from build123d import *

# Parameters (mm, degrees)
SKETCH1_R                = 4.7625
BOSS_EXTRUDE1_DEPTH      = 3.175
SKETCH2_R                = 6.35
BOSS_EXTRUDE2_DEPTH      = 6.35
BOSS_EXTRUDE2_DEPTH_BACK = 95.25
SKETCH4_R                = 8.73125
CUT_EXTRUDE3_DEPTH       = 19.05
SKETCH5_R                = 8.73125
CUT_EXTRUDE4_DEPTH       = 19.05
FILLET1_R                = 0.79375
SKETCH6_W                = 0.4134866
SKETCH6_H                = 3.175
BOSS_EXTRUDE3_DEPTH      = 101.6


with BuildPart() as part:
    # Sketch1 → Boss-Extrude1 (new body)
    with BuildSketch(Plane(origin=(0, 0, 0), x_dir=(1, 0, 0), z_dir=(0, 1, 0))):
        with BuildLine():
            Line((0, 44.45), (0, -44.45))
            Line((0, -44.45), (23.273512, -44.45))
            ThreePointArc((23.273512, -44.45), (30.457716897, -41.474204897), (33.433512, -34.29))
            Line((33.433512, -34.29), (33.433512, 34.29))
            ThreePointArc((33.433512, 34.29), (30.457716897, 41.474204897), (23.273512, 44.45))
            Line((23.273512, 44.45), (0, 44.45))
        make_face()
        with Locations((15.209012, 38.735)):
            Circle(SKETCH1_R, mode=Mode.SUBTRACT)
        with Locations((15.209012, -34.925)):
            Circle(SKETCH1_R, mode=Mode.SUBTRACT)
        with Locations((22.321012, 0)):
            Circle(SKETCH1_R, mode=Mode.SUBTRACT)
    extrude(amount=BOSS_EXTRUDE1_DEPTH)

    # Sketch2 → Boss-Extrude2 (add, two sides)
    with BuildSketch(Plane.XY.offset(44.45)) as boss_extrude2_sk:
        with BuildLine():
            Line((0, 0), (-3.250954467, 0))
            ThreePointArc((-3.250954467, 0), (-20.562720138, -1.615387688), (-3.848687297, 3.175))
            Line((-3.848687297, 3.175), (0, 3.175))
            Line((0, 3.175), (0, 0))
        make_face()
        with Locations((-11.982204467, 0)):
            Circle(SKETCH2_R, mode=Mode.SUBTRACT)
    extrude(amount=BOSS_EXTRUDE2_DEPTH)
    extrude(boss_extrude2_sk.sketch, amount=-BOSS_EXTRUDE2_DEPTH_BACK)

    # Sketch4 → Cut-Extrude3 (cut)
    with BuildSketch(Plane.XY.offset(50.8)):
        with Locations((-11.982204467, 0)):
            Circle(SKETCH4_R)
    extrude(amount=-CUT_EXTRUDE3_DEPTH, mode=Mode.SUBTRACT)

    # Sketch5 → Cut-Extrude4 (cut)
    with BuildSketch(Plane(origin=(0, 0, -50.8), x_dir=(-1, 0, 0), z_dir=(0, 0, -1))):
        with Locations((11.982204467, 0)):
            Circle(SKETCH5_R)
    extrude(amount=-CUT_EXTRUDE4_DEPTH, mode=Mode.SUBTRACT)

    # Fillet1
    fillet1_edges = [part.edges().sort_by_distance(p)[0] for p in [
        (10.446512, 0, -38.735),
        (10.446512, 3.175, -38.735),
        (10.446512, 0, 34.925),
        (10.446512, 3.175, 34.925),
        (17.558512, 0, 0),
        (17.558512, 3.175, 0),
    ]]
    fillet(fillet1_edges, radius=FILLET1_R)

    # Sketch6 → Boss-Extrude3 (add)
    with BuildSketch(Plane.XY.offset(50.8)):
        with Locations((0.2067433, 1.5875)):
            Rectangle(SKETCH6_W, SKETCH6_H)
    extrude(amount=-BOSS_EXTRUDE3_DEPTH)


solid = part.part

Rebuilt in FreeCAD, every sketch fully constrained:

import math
import FreeCAD as App
import Part
import Sketcher
Q = App.Units.Quantity


def edges_at(feature, points):
    """Names of the edges that pass closest to the given points."""
    edges = feature.Shape.Edges
    near = lambda p: min(range(len(edges)), key=lambda i: edges[i].distToShape(Part.Vertex(*p))[0])
    return sorted({f"Edge{near(p) + 1}" for p in points})


def add_polygon(sketch, points):
    """Adds a closed chain of lines whose ends are joined by coincident constraints."""
    first, n = sketch.GeometryCount, len(points)
    for a, b in zip(points, points[1:] + points[:1]):
        sketch.addGeometry(Part.LineSegment(App.Vector(*a, 0), App.Vector(*b, 0)), False)
    for i in range(n):
        sketch.addConstraint(Sketcher.Constraint("Coincident", first + i, 2, first + (i + 1) % n, 1))

doc = App.newDocument("Part")
params = doc.addObject("Spreadsheet::Sheet", "Params")
for row, (alias, value) in enumerate([
    ("sketch1_radius", "0.4 in"),
    ("sketch1_diameter", "0.375 in"),
    ("sketch1_height", "3.5 in"),
    ("pad1_length", "0.125 in"),
    ("sketch2_diameter", "0.5 in"),
    ("sketch2_radius", "0.34375 in"),
    ("sketch2_height", "0.125 in"),
    ("pad2_length", "0.25 in"),
    ("pad2_length2", "3.75 in"),
    ("sketch3_diameter", "0.6875 in"),
    ("pocket1_length", "0.75 in"),
    ("sketch4_diameter", "0.6875 in"),
    ("pocket2_length", "0.75 in"),
    ("fillet_radius", "0.03125 in"),
    ("sketch5_height", "0.125 in"),
    ("pad3_length", "4 in"),
], start=1):
    params.set(f"A{row}", alias)
    params.set(f"B{row}", "=" + value)
    params.setAlias(f"B{row}", alias)

body = doc.addObject("PartDesign::Body", "Body")

sketch1 = doc.addObject("Sketcher::SketchObject", "Sketch")
body.addObject(sketch1)
sketch1.AttachmentSupport = (doc.XZ_Plane, [""])
sketch1.MapMode = "FlatFace"
sketch1.addGeometry(Part.LineSegment(App.Vector(0, -44.5, 0), App.Vector(0, 44.5, 0)), False)
sketch1.addGeometry(Part.LineSegment(App.Vector(0, 44.5, 0), App.Vector(23.3, 44.5, 0)), False)
sketch1.addGeometry(Part.ArcOfCircle(Part.Circle(App.Vector(23.3, 34.3, 0), App.Vector(0, 0, 1), 10.2), math.radians(0), math.radians(90)), False)
sketch1.addGeometry(Part.LineSegment(App.Vector(33.4, 34.3, 0), App.Vector(33.4, -34.3, 0)), False)
sketch1.addGeometry(Part.ArcOfCircle(Part.Circle(App.Vector(23.3, -34.3, 0), App.Vector(0, 0, 1), 10.2), math.radians(-90), math.radians(0)), False)
sketch1.addGeometry(Part.LineSegment(App.Vector(23.3, -44.5, 0), App.Vector(0, -44.5, 0)), False)
sketch1.addGeometry(Part.Circle(App.Vector(15.2, 34.9, 0), App.Vector(0, 0, 1), 4.8), False)
sketch1.addGeometry(Part.Circle(App.Vector(22.3, 0, 0), App.Vector(0, 0, 1), 4.8), False)
sketch1.addGeometry(Part.Circle(App.Vector(15.2, -38.7, 0), App.Vector(0, 0, 1), 4.8), False)
sketch1.addConstraint(Sketcher.Constraint("Coincident", 0, 2, 1, 1))
sketch1.addConstraint(Sketcher.Constraint("Tangent", 1, 2, 2, 2))
sketch1.addConstraint(Sketcher.Constraint("Tangent", 2, 1, 3, 1))
sketch1.addConstraint(Sketcher.Constraint("Tangent", 3, 2, 4, 2))
sketch1.addConstraint(Sketcher.Constraint("Tangent", 4, 1, 5, 1))
sketch1.addConstraint(Sketcher.Constraint("Coincident", 5, 2, 0, 1))
sketch1.addConstraint(Sketcher.Constraint("Vertical", 0))
sketch1.addConstraint(Sketcher.Constraint("Horizontal", 1))
sketch1.addConstraint(Sketcher.Constraint("Vertical", 3))
sketch1.addConstraint(Sketcher.Constraint("Horizontal", 5))
sketch1.addConstraint(Sketcher.Constraint("Equal", 2, 4))
sketch1.addConstraint(Sketcher.Constraint("Equal", 6, 7))
sketch1.addConstraint(Sketcher.Constraint("Equal", 7, 8))
sketch1.addConstraint(Sketcher.Constraint("Symmetric", 0, 2, 5, 2, -1, 1))
sketch1.addConstraint(Sketcher.Constraint("PointOnObject", 7, 3, -1))
sketch1.addConstraint(Sketcher.Constraint("Vertical", 6, 3, 8, 3))
sketch1.addConstraint(Sketcher.Constraint("Radius", 2, Q("0.4 in")))
sketch1.addConstraint(Sketcher.Constraint("Diameter", 6, Q("0.375 in")))
sketch1.addConstraint(Sketcher.Constraint("DistanceY", 0, 1, 0, 2, Q("3.5 in")))
sketch1.addConstraint(Sketcher.Constraint("DistanceY", 8, 3, 6, 3, Q("2.9 in")))
sketch1.addConstraint(Sketcher.Constraint("DistanceX", 6, 3, 7, 3, Q("0.28 in")))
sketch1.addConstraint(Sketcher.Constraint("DistanceY", -1, 1, 6, 3, Q("1.375 in")))
sketch1.addConstraint(Sketcher.Constraint("DistanceX", 7, 3, 2, 1, Q("0.4375 in")))
sketch1.addConstraint(Sketcher.Constraint("DistanceX", 1, 1, 1, 2, 23.273512))
sketch1.setExpression("Constraints[16]", "Params.sketch1_radius")
sketch1.setExpression("Constraints[17]", "Params.sketch1_diameter")
sketch1.setExpression("Constraints[18]", "Params.sketch1_height")
pad1 = doc.addObject("PartDesign::Pad", "Pad")
body.addObject(pad1)
pad1.Profile = sketch1
pad1.setExpression("Length", "Params.pad1_length")
pad1.Reversed = True

sketch2 = doc.addObject("Sketcher::SketchObject", "Sketch001")
body.addObject(sketch2)
sketch2.AttachmentSupport = (doc.XY_Plane, [""])
sketch2.MapMode = "FlatFace"
sketch2.AttachmentOffset = App.Placement(App.Vector(0, 0, 1.75 * 25.4), App.Rotation())
sketch2.addGeometry(Part.LineSegment(App.Vector(-3.3, 0, 0), App.Vector(0, 0, 0)), False)
sketch2.addGeometry(Part.LineSegment(App.Vector(0, 0, 0), App.Vector(0, 3.2, 0)), False)
sketch2.addGeometry(Part.LineSegment(App.Vector(0, 3.2, 0), App.Vector(-3.8, 3.2, 0)), False)
sketch2.addGeometry(Part.ArcOfCircle(Part.Circle(App.Vector(-12, 0, 0), App.Vector(0, 0, 1), 8.7), math.radians(21), math.radians(360)), False)
sketch2.addGeometry(Part.Circle(App.Vector(-12, 0, 0), App.Vector(0, 0, 1), 6.3), False)
sketch2.addConstraint(Sketcher.Constraint("Coincident", 0, 2, 1, 1))
sketch2.addConstraint(Sketcher.Constraint("Coincident", 1, 2, 2, 1))
sketch2.addConstraint(Sketcher.Constraint("Coincident", 2, 2, 3, 1))
sketch2.addConstraint(Sketcher.Constraint("Coincident", 3, 2, 0, 1))
sketch2.addConstraint(Sketcher.Constraint("Horizontal", 0))
sketch2.addConstraint(Sketcher.Constraint("Vertical", 1))
sketch2.addConstraint(Sketcher.Constraint("Horizontal", 2))
sketch2.addConstraint(Sketcher.Constraint("Coincident", 0, 2, -1, 1))
sketch2.addConstraint(Sketcher.Constraint("Coincident", 4, 3, 3, 3))
sketch2.addConstraint(Sketcher.Constraint("PointOnObject", 3, 3, -1))
sketch2.addConstraint(Sketcher.Constraint("Diameter", 4, Q("0.5 in")))
sketch2.addConstraint(Sketcher.Constraint("Radius", 3, Q("0.34375 in")))
sketch2.addConstraint(Sketcher.Constraint("DistanceY", 1, 1, 1, 2, Q("0.125 in")))
sketch2.addConstraint(Sketcher.Constraint("DistanceX", 0, 1, 0, 2, 3.250954))
sketch2.setExpression("Constraints[10]", "Params.sketch2_diameter")
sketch2.setExpression("Constraints[11]", "Params.sketch2_radius")
sketch2.setExpression("Constraints[12]", "Params.sketch2_height")
pad2 = doc.addObject("PartDesign::Pad", "Pad001")
body.addObject(pad2)
pad2.Profile = sketch2
pad2.Type = "TwoLengths"
pad2.setExpression("Length", "Params.pad2_length")
pad2.setExpression("Length2", "Params.pad2_length2")

sketch3 = doc.addObject("Sketcher::SketchObject", "Sketch002")
body.addObject(sketch3)
sketch3.AttachmentSupport = (doc.XY_Plane, [""])
sketch3.MapMode = "FlatFace"
sketch3.AttachmentOffset = App.Placement(App.Vector(0, 0, 2 * 25.4), App.Rotation())
sketch3.addGeometry(Part.Circle(App.Vector(-12, 0, 0), App.Vector(0, 0, 1), 9), False)
sketch3.addConstraint(Sketcher.Constraint("PointOnObject", 0, 3, -1))
sketch3.addConstraint(Sketcher.Constraint("Diameter", 0, Q("0.6875 in")))
sketch3.addConstraint(Sketcher.Constraint("DistanceX", 0, 3, -1, 1, 11.982204))
sketch3.setExpression("Constraints[1]", "Params.sketch3_diameter")
pocket1 = doc.addObject("PartDesign::Pocket", "Pocket")
body.addObject(pocket1)
pocket1.Profile = sketch3
pocket1.setExpression("Length", "Params.pocket1_length")

sketch4 = doc.addObject("Sketcher::SketchObject", "Sketch003")
body.addObject(sketch4)
sketch4.AttachmentSupport = (doc.XY_Plane, [""])
sketch4.MapMode = "FlatFace"
sketch4.AttachmentOffset = App.Placement(App.Vector(0, 0, -2 * 25.4), App.Rotation())
sketch4.addGeometry(Part.Circle(App.Vector(-12, 0, 0), App.Vector(0, 0, 1), 9), False)
sketch4.addConstraint(Sketcher.Constraint("PointOnObject", 0, 3, -1))
sketch4.addConstraint(Sketcher.Constraint("Diameter", 0, Q("0.6875 in")))
sketch4.addConstraint(Sketcher.Constraint("DistanceX", 0, 3, -1, 1, 11.982204))
sketch4.setExpression("Constraints[1]", "Params.sketch4_diameter")
pocket2 = doc.addObject("PartDesign::Pocket", "Pocket001")
body.addObject(pocket2)
pocket2.Profile = sketch4
pocket2.setExpression("Length", "Params.pocket2_length")
pocket2.Reversed = True
doc.recompute()

fillet = doc.addObject("PartDesign::Fillet", "Fillet")
body.addObject(fillet)
fillet.Base = (pocket2, edges_at(pocket2, [
    (10.447, 0, -38.735),
    (10.447, 3.175, -38.735),
    (10.447, 0, 34.925),
    (10.447, 3.175, 34.925),
    (17.559, 0, 0),
    (17.559, 3.175, 0),
]))
fillet.setExpression("Radius", "Params.fillet_radius")

sketch5 = doc.addObject("Sketcher::SketchObject", "Sketch004")
body.addObject(sketch5)
sketch5.AttachmentSupport = (doc.XY_Plane, [""])
sketch5.MapMode = "FlatFace"
sketch5.AttachmentOffset = App.Placement(App.Vector(0, 0, 2 * 25.4), App.Rotation())
add_polygon(sketch5, [(0, 3.17), (0, 0), (0.41, 0), (0.41, 3.17)])
sketch5.addConstraint(Sketcher.Constraint("Vertical", 0))
sketch5.addConstraint(Sketcher.Constraint("Horizontal", 1))
sketch5.addConstraint(Sketcher.Constraint("Vertical", 2))
sketch5.addConstraint(Sketcher.Constraint("Horizontal", 3))
sketch5.addConstraint(Sketcher.Constraint("Coincident", 0, 2, -1, 1))
sketch5.addConstraint(Sketcher.Constraint("DistanceY", 0, 2, 0, 1, Q("0.125 in")))
sketch5.addConstraint(Sketcher.Constraint("DistanceX", 1, 1, 1, 2, 0.413487))
sketch5.setExpression("Constraints[9]", "Params.sketch5_height")
pad3 = doc.addObject("PartDesign::Pad", "Pad002")
body.addObject(pad3)
pad3.Profile = sketch5
pad3.setExpression("Length", "Params.pad3_length")
pad3.Reversed = True

doc.recompute()
